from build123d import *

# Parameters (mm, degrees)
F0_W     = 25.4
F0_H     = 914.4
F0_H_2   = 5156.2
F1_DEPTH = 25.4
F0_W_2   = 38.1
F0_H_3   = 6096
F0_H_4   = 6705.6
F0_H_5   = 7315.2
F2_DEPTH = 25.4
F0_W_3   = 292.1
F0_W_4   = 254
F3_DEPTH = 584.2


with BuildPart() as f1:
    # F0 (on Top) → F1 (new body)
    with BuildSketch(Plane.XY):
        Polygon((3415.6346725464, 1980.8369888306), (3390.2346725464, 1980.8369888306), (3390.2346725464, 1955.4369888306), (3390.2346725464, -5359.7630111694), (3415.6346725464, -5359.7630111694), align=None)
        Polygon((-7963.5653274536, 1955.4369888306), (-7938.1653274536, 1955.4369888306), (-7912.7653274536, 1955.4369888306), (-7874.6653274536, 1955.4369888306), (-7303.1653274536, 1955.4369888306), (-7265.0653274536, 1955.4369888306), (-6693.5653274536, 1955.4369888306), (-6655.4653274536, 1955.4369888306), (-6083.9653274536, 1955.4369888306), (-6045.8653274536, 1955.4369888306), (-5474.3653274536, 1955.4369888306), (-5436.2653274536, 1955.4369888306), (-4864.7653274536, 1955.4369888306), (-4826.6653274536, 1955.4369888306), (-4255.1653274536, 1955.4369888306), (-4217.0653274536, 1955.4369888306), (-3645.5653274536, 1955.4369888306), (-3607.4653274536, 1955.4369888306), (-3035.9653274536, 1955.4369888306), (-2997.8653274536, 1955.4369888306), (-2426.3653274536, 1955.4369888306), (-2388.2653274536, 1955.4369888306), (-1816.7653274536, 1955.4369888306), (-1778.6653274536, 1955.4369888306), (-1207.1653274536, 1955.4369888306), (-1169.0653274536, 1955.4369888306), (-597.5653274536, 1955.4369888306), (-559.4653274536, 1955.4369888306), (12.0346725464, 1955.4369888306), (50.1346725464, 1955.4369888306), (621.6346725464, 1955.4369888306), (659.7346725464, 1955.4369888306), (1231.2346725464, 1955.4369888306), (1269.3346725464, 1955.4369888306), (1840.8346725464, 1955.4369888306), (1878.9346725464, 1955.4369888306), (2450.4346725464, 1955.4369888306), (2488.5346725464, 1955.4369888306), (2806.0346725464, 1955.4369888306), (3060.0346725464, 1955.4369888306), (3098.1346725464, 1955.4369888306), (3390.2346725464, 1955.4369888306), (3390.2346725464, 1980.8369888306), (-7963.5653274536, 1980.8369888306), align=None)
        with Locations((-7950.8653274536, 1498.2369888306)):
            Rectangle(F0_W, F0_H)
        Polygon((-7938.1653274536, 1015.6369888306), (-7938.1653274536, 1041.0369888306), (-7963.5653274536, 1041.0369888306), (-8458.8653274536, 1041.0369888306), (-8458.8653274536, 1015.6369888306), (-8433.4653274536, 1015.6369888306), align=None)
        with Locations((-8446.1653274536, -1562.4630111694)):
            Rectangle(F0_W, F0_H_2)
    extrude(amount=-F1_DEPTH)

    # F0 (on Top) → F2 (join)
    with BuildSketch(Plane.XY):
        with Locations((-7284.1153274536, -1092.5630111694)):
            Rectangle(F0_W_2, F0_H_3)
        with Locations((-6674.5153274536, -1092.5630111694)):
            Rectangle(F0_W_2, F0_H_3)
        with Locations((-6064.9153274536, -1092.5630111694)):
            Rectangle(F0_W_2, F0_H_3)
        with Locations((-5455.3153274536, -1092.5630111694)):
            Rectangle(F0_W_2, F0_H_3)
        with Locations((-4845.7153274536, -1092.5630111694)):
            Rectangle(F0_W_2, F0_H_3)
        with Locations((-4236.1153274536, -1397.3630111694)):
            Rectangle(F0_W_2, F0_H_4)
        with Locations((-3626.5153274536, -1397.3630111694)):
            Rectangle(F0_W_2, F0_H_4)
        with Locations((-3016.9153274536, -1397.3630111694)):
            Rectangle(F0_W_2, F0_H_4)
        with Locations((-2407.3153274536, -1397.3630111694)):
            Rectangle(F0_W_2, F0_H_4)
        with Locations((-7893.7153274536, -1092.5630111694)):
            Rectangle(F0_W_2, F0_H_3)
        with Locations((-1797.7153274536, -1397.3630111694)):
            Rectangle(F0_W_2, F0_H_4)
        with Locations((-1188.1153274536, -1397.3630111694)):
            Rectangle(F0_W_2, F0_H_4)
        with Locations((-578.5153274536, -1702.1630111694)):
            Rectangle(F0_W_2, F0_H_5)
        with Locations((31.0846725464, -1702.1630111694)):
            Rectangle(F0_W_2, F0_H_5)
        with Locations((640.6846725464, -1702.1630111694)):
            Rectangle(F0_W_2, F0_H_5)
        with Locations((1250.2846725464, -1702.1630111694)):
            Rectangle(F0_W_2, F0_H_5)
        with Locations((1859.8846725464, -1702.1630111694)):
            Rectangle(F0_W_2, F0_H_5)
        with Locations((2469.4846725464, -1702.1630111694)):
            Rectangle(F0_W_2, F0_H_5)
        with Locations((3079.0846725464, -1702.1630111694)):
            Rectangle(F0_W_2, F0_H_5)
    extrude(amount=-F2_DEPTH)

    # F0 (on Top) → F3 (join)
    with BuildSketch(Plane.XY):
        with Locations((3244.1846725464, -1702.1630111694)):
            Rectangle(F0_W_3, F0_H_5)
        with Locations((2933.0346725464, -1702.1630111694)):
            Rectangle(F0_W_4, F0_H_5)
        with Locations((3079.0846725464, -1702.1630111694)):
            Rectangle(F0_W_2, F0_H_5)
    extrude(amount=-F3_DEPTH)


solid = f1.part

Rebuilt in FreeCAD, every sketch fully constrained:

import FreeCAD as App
import Part
import Sketcher

V = App.Vector
Q = App.Units.Quantity

doc = App.newDocument("Part")
body = doc.addObject("PartDesign::Body", "Body")

# Sketch on XY plane
sketch1 = doc.addObject("Sketcher::SketchObject", "Sketch")
body.addObject(sketch1)
sketch1.AttachmentSupport = (doc.XY_Plane, [""])
sketch1.MapMode = "FlatFace"
sketch1.addGeometry([
    Part.LineSegment(V(3416, 1981, 0), V(-7964, 1981, 0)),  # 0
    Part.LineSegment(V(-7964, 1981, 0), V(-7964, 1041, 0)),  # 1
    Part.LineSegment(V(-7964, 1041, 0), V(-8459, 1041, 0)),  # 2
    Part.LineSegment(V(-8459, 1041, 0), V(-8459, -4141, 0)),  # 3
    Part.LineSegment(V(-8459, -4141, 0), V(-8433, -4141, 0)),  # 4
    Part.LineSegment(V(-8433, -4141, 0), V(-8433, 1016, 0)),  # 5
    Part.LineSegment(V(-8433, 1016, 0), V(-7938, 1016, 0)),  # 6
    Part.LineSegment(V(-7938, 1016, 0), V(-7938, 1955, 0)),  # 7
    Part.LineSegment(V(-7938, 1955, 0), V(3390, 1955, 0)),  # 8
    Part.LineSegment(V(3390, 1955, 0), V(3390, -5360, 0)),  # 9
    Part.LineSegment(V(3390, -5360, 0), V(3416, -5360, 0)),  # 10
    Part.LineSegment(V(3416, -5360, 0), V(3416, 1981, 0)),  # 11
], False)
sketch1.addConstraint([
    Sketcher.Constraint("Coincident", 0, 2, 1, 1),
    Sketcher.Constraint("Coincident", 1, 2, 2, 1),
    Sketcher.Constraint("Coincident", 2, 2, 3, 1),
    Sketcher.Constraint("Coincident", 3, 2, 4, 1),
    Sketcher.Constraint("Coincident", 4, 2, 5, 1),
    Sketcher.Constraint("Coincident", 5, 2, 6, 1),
    Sketcher.Constraint("Coincident", 6, 2, 7, 1),
    Sketcher.Constraint("Coincident", 7, 2, 8, 1),
    Sketcher.Constraint("Coincident", 8, 2, 9, 1),
    Sketcher.Constraint("Coincident", 9, 2, 10, 1),
    Sketcher.Constraint("Coincident", 10, 2, 11, 1),
    Sketcher.Constraint("Coincident", 11, 2, 0, 1),
    Sketcher.Constraint("Horizontal", 0),
    Sketcher.Constraint("Vertical", 1),
    Sketcher.Constraint("Horizontal", 2),
    Sketcher.Constraint("Vertical", 3),
    Sketcher.Constraint("Horizontal", 4),
    Sketcher.Constraint("Vertical", 5),
    Sketcher.Constraint("Horizontal", 6),
    Sketcher.Constraint("Vertical", 7),
    Sketcher.Constraint("Horizontal", 8),
    Sketcher.Constraint("Vertical", 9),
    Sketcher.Constraint("Horizontal", 10),
    Sketcher.Constraint("Vertical", 11),
    Sketcher.Constraint("Equal", 2, 6),
    Sketcher.Constraint("Equal", 4, 10),
    Sketcher.Constraint("Equal", 1, 7),
    Sketcher.Constraint("DistanceX", 0, 2, 0, 1, Q("448 in")),
    Sketcher.Constraint("DistanceX", 4, 1, 4, 2, Q("1 in")),
    Sketcher.Constraint("DistanceY", 1, 2, 1, 1, Q("37 in")),
    Sketcher.Constraint("DistanceY", 3, 2, 3, 1, Q("204 in")),
    Sketcher.Constraint("DistanceY", 5, 1, 5, 2, Q("203 in")),
    Sketcher.Constraint("DistanceY", 9, 2, 9, 1, Q("288 in")),
    Sketcher.Constraint("DistanceX", 2, 2, 2, 1, Q("19.5 in")),
    Sketcher.Constraint("DistanceY", -1, 1, 0, 2, 1980.836989),
    Sketcher.Constraint("DistanceX", 0, 2, -1, 1, 7963.565327),
])
pad1 = doc.addObject("PartDesign::Pad", "Pad")
body.addObject(pad1)
pad1.Profile = sketch1
pad1.Length = Q("1 in")
pad1.Reversed = True

# Sketch on XY plane
sketch2 = doc.addObject("Sketcher::SketchObject", "Sketch001")
body.addObject(sketch2)
sketch2.AttachmentSupport = (doc.XY_Plane, [""])
sketch2.MapMode = "FlatFace"
sketch2.addGeometry([
    Part.LineSegment(V(-7303, 1955, 0), V(-7303, -4141, 0)),  # 0
    Part.LineSegment(V(-7303, -4141, 0), V(-7265, -4141, 0)),  # 1
    Part.LineSegment(V(-7265, -4141, 0), V(-7265, 1955, 0)),  # 2
    Part.LineSegment(V(-7265, 1955, 0), V(-7303, 1955, 0)),  # 3
    Part.LineSegment(V(-6694, 1955, 0), V(-6694, -4141, 0)),  # 4
    Part.LineSegment(V(-6694, -4141, 0), V(-6655, -4141, 0)),  # 5
    Part.LineSegment(V(-6655, -4141, 0), V(-6655, 1955, 0)),  # 6
    Part.LineSegment(V(-6655, 1955, 0), V(-6694, 1955, 0)),  # 7
    Part.LineSegment(V(-6084, 1955, 0), V(-6084, -4141, 0)),  # 8
    Part.LineSegment(V(-6084, -4141, 0), V(-6046, -4141, 0)),  # 9
    Part.LineSegment(V(-6046, -4141, 0), V(-6046, 1955, 0)),  # 10
    Part.LineSegment(V(-6046, 1955, 0), V(-6084, 1955, 0)),  # 11
    Part.LineSegment(V(-5474, 1955, 0), V(-5474, -4141, 0)),  # 12
    Part.LineSegment(V(-5474, -4141, 0), V(-5436, -4141, 0)),  # 13
    Part.LineSegment(V(-5436, -4141, 0), V(-5436, 1955, 0)),  # 14
    Part.LineSegment(V(-5436, 1955, 0), V(-5474, 1955, 0)),  # 15
    Part.LineSegment(V(-4865, 1955, 0), V(-4865, -4141, 0)),  # 16
    Part.LineSegment(V(-4865, -4141, 0), V(-4827, -4141, 0)),  # 17
    Part.LineSegment(V(-4827, -4141, 0), V(-4827, 1955, 0)),  # 18
    Part.LineSegment(V(-4827, 1955, 0), V(-4865, 1955, 0)),  # 19
    Part.LineSegment(V(-4255, 1955, 0), V(-4255, -4750, 0)),  # 20
    Part.LineSegment(V(-4255, -4750, 0), V(-4217, -4750, 0)),  # 21
    Part.LineSegment(V(-4217, -4750, 0), V(-4217, 1955, 0)),  # 22
    Part.LineSegment(V(-4217, 1955, 0), V(-4255, 1955, 0)),  # 23
    Part.LineSegment(V(-3646, 1955, 0), V(-3646, -4750, 0)),  # 24
    Part.LineSegment(V(-3646, -4750, 0), V(-3607, -4750, 0)),  # 25
    Part.LineSegment(V(-3607, -4750, 0), V(-3607, 1955, 0)),  # 26
    Part.LineSegment(V(-3607, 1955, 0), V(-3646, 1955, 0)),  # 27
    Part.LineSegment(V(-3036, 1955, 0), V(-3036, -4750, 0)),  # 28
    Part.LineSegment(V(-3036, -4750, 0), V(-2998, -4750, 0)),  # 29
    Part.LineSegment(V(-2998, -4750, 0), V(-2998, 1955, 0)),  # 30
    Part.LineSegment(V(-2998, 1955, 0), V(-3036, 1955, 0)),  # 31
    Part.LineSegment(V(-2426, 1955, 0), V(-2426, -4750, 0)),  # 32
    Part.LineSegment(V(-2426, -4750, 0), V(-2388, -4750, 0)),  # 33
    Part.LineSegment(V(-2388, -4750, 0), V(-2388, 1955, 0)),  # 34
    Part.LineSegment(V(-2388, 1955, 0), V(-2426, 1955, 0)),  # 35
    Part.LineSegment(V(-7913, 1955, 0), V(-7913, -4141, 0)),  # 36
    Part.LineSegment(V(-7913, -4141, 0), V(-7875, -4141, 0)),  # 37
    Part.LineSegment(V(-7875, -4141, 0), V(-7875, 1955, 0)),  # 38
    Part.LineSegment(V(-7875, 1955, 0), V(-7913, 1955, 0)),  # 39
    Part.LineSegment(V(-1817, 1955, 0), V(-1817, -4750, 0)),  # 40
    Part.LineSegment(V(-1817, -4750, 0), V(-1779, -4750, 0)),  # 41
    Part.LineSegment(V(-1779, -4750, 0), V(-1779, 1955, 0)),  # 42
    Part.LineSegment(V(-1779, 1955, 0), V(-1817, 1955, 0)),  # 43
    Part.LineSegment(V(-1207, 1955, 0), V(-1207, -4750, 0)),  # 44
    Part.LineSegment(V(-1207, -4750, 0), V(-1169, -4750, 0)),  # 45
    Part.LineSegment(V(-1169, -4750, 0), V(-1169, 1955, 0)),  # 46
    Part.LineSegment(V(-1169, 1955, 0), V(-1207, 1955, 0)),  # 47
    Part.LineSegment(V(-598, 1955, 0), V(-598, -5360, 0)),  # 48
    Part.LineSegment(V(-598, -5360, 0), V(-559, -5360, 0)),  # 49
    Part.LineSegment(V(-559, -5360, 0), V(-559, 1955, 0)),  # 50
    Part.LineSegment(V(-559, 1955, 0), V(-598, 1955, 0)),  # 51
    Part.LineSegment(V(12, 1955, 0), V(12, -5360, 0)),  # 52
    Part.LineSegment(V(12, -5360, 0), V(50, -5360, 0)),  # 53
    Part.LineSegment(V(50, -5360, 0), V(50, 1955, 0)),  # 54
    Part.LineSegment(V(50, 1955, 0), V(12, 1955, 0)),  # 55
    Part.LineSegment(V(622, 1955, 0), V(622, -5360, 0)),  # 56
    Part.LineSegment(V(622, -5360, 0), V(660, -5360, 0)),  # 57
    Part.LineSegment(V(660, -5360, 0), V(660, 1955, 0)),  # 58
    Part.LineSegment(V(660, 1955, 0), V(622, 1955, 0)),  # 59
    Part.LineSegment(V(1231, 1955, 0), V(1231, -5360, 0)),  # 60
    Part.LineSegment(V(1231, -5360, 0), V(1269, -5360, 0)),  # 61
    Part.LineSegment(V(1269, -5360, 0), V(1269, 1955, 0)),  # 62
    Part.LineSegment(V(1269, 1955, 0), V(1231, 1955, 0)),  # 63
    Part.LineSegment(V(1841, 1955, 0), V(1841, -5360, 0)),  # 64
    Part.LineSegment(V(1841, -5360, 0), V(1879, -5360, 0)),  # 65
    Part.LineSegment(V(1879, -5360, 0), V(1879, 1955, 0)),  # 66
    Part.LineSegment(V(1879, 1955, 0), V(1841, 1955, 0)),  # 67
    Part.LineSegment(V(2450, 1955, 0), V(2450, -5360, 0)),  # 68
    Part.LineSegment(V(2450, -5360, 0), V(2489, -5360, 0)),  # 69
    Part.LineSegment(V(2489, -5360, 0), V(2489, 1955, 0)),  # 70
    Part.LineSegment(V(2489, 1955, 0), V(2450, 1955, 0)),  # 71
    Part.LineSegment(V(3060, 1955, 0), V(3060, -5360, 0)),  # 72
    Part.LineSegment(V(3060, -5360, 0), V(3098, -5360, 0)),  # 73
    Part.LineSegment(V(3098, -5360, 0), V(3098, 1955, 0)),  # 74
    Part.LineSegment(V(3098, 1955, 0), V(3060, 1955, 0)),  # 75
], False)
sketch2.addConstraint([
    Sketcher.Constraint("Coincident", 0, 2, 1, 1),
    Sketcher.Constraint("Coincident", 1, 2, 2, 1),
    Sketcher.Constraint("Coincident", 2, 2, 3, 1),
    Sketcher.Constraint("Coincident", 3, 2, 0, 1),
    Sketcher.Constraint("Coincident", 4, 2, 5, 1),
    Sketcher.Constraint("Coincident", 5, 2, 6, 1),
    Sketcher.Constraint("Coincident", 6, 2, 7, 1),
    Sketcher.Constraint("Coincident", 7, 2, 4, 1),
    Sketcher.Constraint("Coincident", 8, 2, 9, 1),
    Sketcher.Constraint("Coincident", 9, 2, 10, 1),
    Sketcher.Constraint("Coincident", 10, 2, 11, 1),
    Sketcher.Constraint("Coincident", 11, 2, 8, 1),
    Sketcher.Constraint("Coincident", 12, 2, 13, 1),
    Sketcher.Constraint("Coincident", 13, 2, 14, 1),
    Sketcher.Constraint("Coincident", 14, 2, 15, 1),
    Sketcher.Constraint("Coincident", 15, 2, 12, 1),
    Sketcher.Constraint("Coincident", 16, 2, 17, 1),
    Sketcher.Constraint("Coincident", 17, 2, 18, 1),
    Sketcher.Constraint("Coincident", 18, 2, 19, 1),
    Sketcher.Constraint("Coincident", 19, 2, 16, 1),
    Sketcher.Constraint("Coincident", 20, 2, 21, 1),
    Sketcher.Constraint("Coincident", 21, 2, 22, 1),
    Sketcher.Constraint("Coincident", 22, 2, 23, 1),
    Sketcher.Constraint("Coincident", 23, 2, 20, 1),
    Sketcher.Constraint("Coincident", 24, 2, 25, 1),
    Sketcher.Constraint("Coincident", 25, 2, 26, 1),
    Sketcher.Constraint("Coincident", 26, 2, 27, 1),
    Sketcher.Constraint("Coincident", 27, 2, 24, 1),
    Sketcher.Constraint("Coincident", 28, 2, 29, 1),
    Sketcher.Constraint("Coincident", 29, 2, 30, 1),
    Sketcher.Constraint("Coincident", 30, 2, 31, 1),
    Sketcher.Constraint("Coincident", 31, 2, 28, 1),
    Sketcher.Constraint("Coincident", 32, 2, 33, 1),
    Sketcher.Constraint("Coincident", 33, 2, 34, 1),
    Sketcher.Constraint("Coincident", 34, 2, 35, 1),
    Sketcher.Constraint("Coincident", 35, 2, 32, 1),
    Sketcher.Constraint("Coincident", 36, 2, 37, 1),
    Sketcher.Constraint("Coincident", 37, 2, 38, 1),
    Sketcher.Constraint("Coincident", 38, 2, 39, 1),
    Sketcher.Constraint("Coincident", 39, 2, 36, 1),
    Sketcher.Constraint("Coincident", 40, 2, 41, 1),
    Sketcher.Constraint("Coincident", 41, 2, 42, 1),
    Sketcher.Constraint("Coincident", 42, 2, 43, 1),
    Sketcher.Constraint("Coincident", 43, 2, 40, 1),
    Sketcher.Constraint("Coincident", 44, 2, 45, 1),
    Sketcher.Constraint("Coincident", 45, 2, 46, 1),
    Sketcher.Constraint("Coincident", 46, 2, 47, 1),
    Sketcher.Constraint("Coincident", 47, 2, 44, 1),
    Sketcher.Constraint("Coincident", 48, 2, 49, 1),
    Sketcher.Constraint("Coincident", 49, 2, 50, 1),
    Sketcher.Constraint("Coincident", 50, 2, 51, 1),
    Sketcher.Constraint("Coincident", 51, 2, 48, 1),
    Sketcher.Constraint("Coincident", 52, 2, 53, 1),
    Sketcher.Constraint("Coincident", 53, 2, 54, 1),
    Sketcher.Constraint("Coincident", 54, 2, 55, 1),
    Sketcher.Constraint("Coincident", 55, 2, 52, 1),
    Sketcher.Constraint("Coincident", 56, 2, 57, 1),
    Sketcher.Constraint("Coincident", 57, 2, 58, 1),
    Sketcher.Constraint("Coincident", 58, 2, 59, 1),
    Sketcher.Constraint("Coincident", 59, 2, 56, 1),
    Sketcher.Constraint("Coincident", 60, 2, 61, 1),
    Sketcher.Constraint("Coincident", 61, 2, 62, 1),
    Sketcher.Constraint("Coincident", 62, 2, 63, 1),
    Sketcher.Constraint("Coincident", 63, 2, 60, 1),
    Sketcher.Constraint("Coincident", 64, 2, 65, 1),
    Sketcher.Constraint("Coincident", 65, 2, 66, 1),
    Sketcher.Constraint("Coincident", 66, 2, 67, 1),
    Sketcher.Constraint("Coincident", 67, 2, 64, 1),
    Sketcher.Constraint("Coincident", 68, 2, 69, 1),
    Sketcher.Constraint("Coincident", 69, 2, 70, 1),
    Sketcher.Constraint("Coincident", 70, 2, 71, 1),
    Sketcher.Constraint("Coincident", 71, 2, 68, 1),
    Sketcher.Constraint("Coincident", 72, 2, 73, 1),
    Sketcher.Constraint("Coincident", 73, 2, 74, 1),
    Sketcher.Constraint("Coincident", 74, 2, 75, 1),
    Sketcher.Constraint("Coincident", 75, 2, 72, 1),
    Sketcher.Constraint("Vertical", 0),
    Sketcher.Constraint("Horizontal", 1),
    Sketcher.Constraint("Vertical", 2),
    Sketcher.Constraint("Horizontal", 3),
    Sketcher.Constraint("Vertical", 4),
    Sketcher.Constraint("Horizontal", 5),
    Sketcher.Constraint("Vertical", 6),
    Sketcher.Constraint("Horizontal", 7),
    Sketcher.Constraint("Vertical", 8),
    Sketcher.Constraint("Horizontal", 9),
    Sketcher.Constraint("Vertical", 10),
    Sketcher.Constraint("Horizontal", 11),
    Sketcher.Constraint("Vertical", 12),
    Sketcher.Constraint("Horizontal", 13),
    Sketcher.Constraint("Vertical", 14),
    Sketcher.Constraint("Horizontal", 15),
    Sketcher.Constraint("Vertical", 16),
    Sketcher.Constraint("Horizontal", 17),
    Sketcher.Constraint("Vertical", 18),
    Sketcher.Constraint("Horizontal", 19),
    Sketcher.Constraint("Vertical", 20),
    Sketcher.Constraint("Horizontal", 21),
    Sketcher.Constraint("Vertical", 22),
    Sketcher.Constraint("Horizontal", 23),
    Sketcher.Constraint("Vertical", 24),
    Sketcher.Constraint("Horizontal", 25),
    Sketcher.Constraint("Vertical", 26),
    Sketcher.Constraint("Horizontal", 27),
    Sketcher.Constraint("Vertical", 28),
    Sketcher.Constraint("Horizontal", 29),
    Sketcher.Constraint("Vertical", 30),
    Sketcher.Constraint("Horizontal", 31),
    Sketcher.Constraint("Vertical", 32),
    Sketcher.Constraint("Horizontal", 33),
    Sketcher.Constraint("Vertical", 34),
    Sketcher.Constraint("Horizontal", 35),
    Sketcher.Constraint("Vertical", 36),
    Sketcher.Constraint("Horizontal", 37),
    Sketcher.Constraint("Vertical", 38),
    Sketcher.Constraint("Horizontal", 39),
    Sketcher.Constraint("Vertical", 40),
    Sketcher.Constraint("Horizontal", 41),
    Sketcher.Constraint("Vertical", 42),
    Sketcher.Constraint("Horizontal", 43),
    Sketcher.Constraint("Vertical", 44),
    Sketcher.Constraint("Horizontal", 45),
    Sketcher.Constraint("Vertical", 46),
    Sketcher.Constraint("Horizontal", 47),
    Sketcher.Constraint("Vertical", 48),
    Sketcher.Constraint("Horizontal", 49),
    Sketcher.Constraint("Vertical", 50),
    Sketcher.Constraint("Horizontal", 51),
    Sketcher.Constraint("Vertical", 52),
    Sketcher.Constraint("Horizontal", 53),
    Sketcher.Constraint("Vertical", 54),
    Sketcher.Constraint("Horizontal", 55),
    Sketcher.Constraint("Vertical", 56),
    Sketcher.Constraint("Horizontal", 57),
    Sketcher.Constraint("Vertical", 58),
    Sketcher.Constraint("Horizontal", 59),
    Sketcher.Constraint("Vertical", 60),
    Sketcher.Constraint("Horizontal", 61),
    Sketcher.Constraint("Vertical", 62),
    Sketcher.Constraint("Horizontal", 63),
    Sketcher.Constraint("Vertical", 64),
    Sketcher.Constraint("Horizontal", 65),
    Sketcher.Constraint("Vertical", 66),
    Sketcher.Constraint("Horizontal", 67),
    Sketcher.Constraint("Vertical", 68),
    Sketcher.Constraint("Horizontal", 69),
    Sketcher.Constraint("Vertical", 70),
    Sketcher.Constraint("Horizontal", 71),
    Sketcher.Constraint("Vertical", 72),
    Sketcher.Constraint("Horizontal", 73),
    Sketcher.Constraint("Vertical", 74),
    Sketcher.Constraint("Horizontal", 75),
    Sketcher.Constraint("Horizontal", 1, 2, 4, 2),
    Sketcher.Constraint("Horizontal", 3, 2, 6, 2),
    Sketcher.Constraint("Horizontal", 5, 2, 8, 2),
    Sketcher.Constraint("Horizontal", 7, 2, 10, 2),
    Sketcher.Constraint("Horizontal", 9, 2, 12, 2),
    Sketcher.Constraint("Horizontal", 11, 2, 14, 2),
    Sketcher.Constraint("Horizontal", 13, 2, 16, 2),
    Sketcher.Constraint("Horizontal", 15, 2, 18, 2),
    Sketcher.Constraint("Horizontal", 19, 2, 22, 2),
    Sketcher.Constraint("Horizontal", 21, 2, 24, 2),
    Sketcher.Constraint("Horizontal", 23, 2, 26, 2),
    Sketcher.Constraint("Horizontal", 25, 2, 28, 2),
    Sketcher.Constraint("Horizontal", 27, 2, 30, 2),
    Sketcher.Constraint("Horizontal", 29, 2, 32, 2),
    Sketcher.Constraint("Horizontal", 31, 2, 34, 2),
    Sketcher.Constraint("Horizontal", 17, 2, 36, 2),
    Sketcher.Constraint("Horizontal", 35, 2, 38, 2),
    Sketcher.Constraint("Horizontal", 33, 2, 40, 2),
    Sketcher.Constraint("Horizontal", 39, 2, 42, 2),
    Sketcher.Constraint("Horizontal", 41, 2, 44, 2),
    Sketcher.Constraint("Horizontal", 43, 2, 46, 2),
    Sketcher.Constraint("Horizontal", 47, 2, 50, 2),
    Sketcher.Constraint("Horizontal", 49, 2, 52, 2),
    Sketcher.Constraint("Horizontal", 51, 2, 54, 2),
    Sketcher.Constraint("Horizontal", 53, 2, 56, 2),
    Sketcher.Constraint("Horizontal", 55, 2, 58, 2),
    Sketcher.Constraint("Horizontal", 57, 2, 60, 2),
    Sketcher.Constraint("Horizontal", 59, 2, 62, 2),
    Sketcher.Constraint("Horizontal", 61, 2, 64, 2),
    Sketcher.Constraint("Horizontal", 63, 2, 66, 2),
    Sketcher.Constraint("Horizontal", 65, 2, 68, 2),
    Sketcher.Constraint("Horizontal", 67, 2, 70, 2),
    Sketcher.Constraint("Horizontal", 69, 2, 72, 2),
    Sketcher.Constraint("Horizontal", 71, 2, 74, 2),
    Sketcher.Constraint("Equal", 3, 5),
    Sketcher.Constraint("Equal", 7, 9),
    Sketcher.Constraint("Equal", 11, 13),
    Sketcher.Constraint("Equal", 15, 17),
    Sketcher.Constraint("Equal", 19, 21),
    Sketcher.Constraint("Equal", 23, 25),
    Sketcher.Constraint("Equal", 27, 29),
    Sketcher.Constraint("Equal", 31, 33),
    Sketcher.Constraint("Equal", 35, 37),
    Sketcher.Constraint("Equal", 39, 41),
    Sketcher.Constraint("Equal", 43, 45),
    Sketcher.Constraint("Equal", 47, 49),
    Sketcher.Constraint("Equal", 51, 53),
    Sketcher.Constraint("Equal", 55, 57),
    Sketcher.Constraint("Equal", 59, 61),
    Sketcher.Constraint("Equal", 63, 65),
    Sketcher.Constraint("Equal", 67, 69),
    Sketcher.Constraint("Equal", 71, 73),
    Sketcher.Constraint("DistanceY", 0, 2, 0, 1, Q("240 in")),
    Sketcher.Constraint("DistanceY", 20, 2, 20, 1, Q("264 in")),
    Sketcher.Constraint("DistanceY", 48, 2, 48, 1, Q("288 in")),
    Sketcher.Constraint("DistanceX", 1, 1, 1, 2, Q("1.5 in")),
    Sketcher.Constraint("DistanceY", 0, 2, -1, 1, 4140.563011),
    Sketcher.Constraint("DistanceX", 0, 2, -1, 1, 7303.165327),
    Sketcher.Constraint("DistanceX", 4, 2, -1, 1, 6693.565327),
    Sketcher.Constraint("DistanceX", 8, 2, -1, 1, 6083.965327),
    Sketcher.Constraint("DistanceX", 12, 2, -1, 1, 5474.365327),
    Sketcher.Constraint("DistanceX", 16, 2, -1, 1, 4864.765327),
    Sketcher.Constraint("DistanceX", 20, 2, -1, 1, 4255.165327),
    Sketcher.Constraint("DistanceX", 24, 2, -1, 1, 3645.565327),
    Sketcher.Constraint("DistanceX", 28, 2, -1, 1, 3035.965327),
    Sketcher.Constraint("DistanceX", 32, 2, -1, 1, 2426.365327),
    Sketcher.Constraint("DistanceX", 36, 2, -1, 1, 7912.765327),
    Sketcher.Constraint("DistanceX", 40, 2, -1, 1, 1816.765327),
    Sketcher.Constraint("DistanceX", 44, 2, -1, 1, 1207.165327),
    Sketcher.Constraint("DistanceX", 48, 2, -1, 1, 597.565327),
    Sketcher.Constraint("DistanceX", -1, 1, 52, 2, 12.034673),
    Sketcher.Constraint("DistanceX", -1, 1, 56, 2, 621.634673),
    Sketcher.Constraint("DistanceX", -1, 1, 60, 2, 1231.234673),
    Sketcher.Constraint("DistanceX", -1, 1, 64, 2, 1840.834673),
    Sketcher.Constraint("DistanceX", -1, 1, 68, 2, 2450.434673),
    Sketcher.Constraint("DistanceX", -1, 1, 72, 2, 3060.034673),
])
pad2 = doc.addObject("PartDesign::Pad", "Pad001")
body.addObject(pad2)
pad2.Profile = sketch2
pad2.Length = Q("1 in")
pad2.Reversed = True

# Sketch on XY plane
sketch3 = doc.addObject("Sketcher::SketchObject", "Sketch002")
body.addObject(sketch3)
sketch3.AttachmentSupport = (doc.XY_Plane, [""])
sketch3.MapMode = "FlatFace"
sketch3.addGeometry([
    Part.LineSegment(V(3390, -5360, 0), V(3390, 1955, 0)),
    Part.LineSegment(V(3390, 1955, 0), V(2806, 1955, 0)),
    Part.LineSegment(V(2806, 1955, 0), V(2806, -5360, 0)),
    Part.LineSegment(V(2806, -5360, 0), V(3390, -5360, 0)),
], False)
sketch3.addConstraint([
    Sketcher.Constraint("Coincident", 0, 2, 1, 1),
    Sketcher.Constraint("Coincident", 1, 2, 2, 1),
    Sketcher.Constraint("Coincident", 2, 2, 3, 1),
    Sketcher.Constraint("Coincident", 3, 2, 0, 1),
    Sketcher.Constraint("Vertical", 0),
    Sketcher.Constraint("Horizontal", 1),
    Sketcher.Constraint("Vertical", 2),
    Sketcher.Constraint("Horizontal", 3),
    Sketcher.Constraint("DistanceX", 1, 2, 1, 1, Q("23 in")),
    Sketcher.Constraint("DistanceY", 0, 1, 0, 2, Q("288 in")),
    Sketcher.Constraint("DistanceY", -1, 1, 0, 2, 1955.436989),
    Sketcher.Constraint("DistanceX", -1, 1, 0, 2, 3390.234673),
])
pad3 = doc.addObject("PartDesign::Pad", "Pad002")
body.addObject(pad3)
pad3.Profile = sketch3
pad3.Length = Q("23 in")
pad3.Reversed = True

doc.recompute()
